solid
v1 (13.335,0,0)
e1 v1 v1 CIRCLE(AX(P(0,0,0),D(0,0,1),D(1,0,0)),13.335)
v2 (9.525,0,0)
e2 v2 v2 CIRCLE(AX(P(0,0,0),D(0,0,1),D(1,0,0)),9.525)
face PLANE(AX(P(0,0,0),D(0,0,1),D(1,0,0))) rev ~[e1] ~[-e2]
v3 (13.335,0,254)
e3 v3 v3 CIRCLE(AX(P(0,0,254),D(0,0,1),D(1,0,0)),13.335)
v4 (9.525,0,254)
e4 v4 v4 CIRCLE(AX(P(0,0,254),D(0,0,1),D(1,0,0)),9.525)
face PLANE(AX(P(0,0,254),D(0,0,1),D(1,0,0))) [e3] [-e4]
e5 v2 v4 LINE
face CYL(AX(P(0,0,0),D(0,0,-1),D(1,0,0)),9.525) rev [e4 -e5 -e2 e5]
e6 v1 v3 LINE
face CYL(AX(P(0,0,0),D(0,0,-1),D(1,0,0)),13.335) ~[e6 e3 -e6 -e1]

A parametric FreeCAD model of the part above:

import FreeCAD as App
import Part
import Sketcher

V = App.Vector
Q = App.Units.Quantity

doc = App.newDocument("Part")
params = doc.addObject("Spreadsheet::Sheet", "Params")
for row, (alias, value) in enumerate([
    ("sketch1_diameter", "0.75 in"),
    ("pad1_length", "10 in"),
    ("sketch2_diameter", "1.05 in"),
    ("pad2_length", "10 in"),
], start=1):
    params.set(f"A{row}", alias)
    params.set(f"B{row}", "=" + value)
    params.setAlias(f"B{row}", alias)

body = doc.addObject("PartDesign::Body", "Body")

# Sketch on XY plane
sketch1 = doc.addObject("Sketcher::SketchObject", "Sketch")
body.addObject(sketch1)
sketch1.AttachmentSupport = (doc.XY_Plane, [""])
sketch1.MapMode = "FlatFace"
sketch1.addGeometry(Part.Circle(V(0, 0, 0), V(0, 0, 1), 10), False)
sketch1.addConstraint(Sketcher.Constraint("Coincident", 0, 3, -1, 1))
sketch1.addConstraint(Sketcher.Constraint("Diameter", 0, Q("0.75 in")))
sketch1.setExpression("Constraints[1]", "Params.sketch1_diameter")
pad1 = doc.addObject("PartDesign::Pad", "Pad")
body.addObject(pad1)
pad1.Profile = sketch1
pad1.setExpression("Length", "Params.pad1_length")
body2 = doc.addObject("PartDesign::Body", "Body001")

# Sketch on XY plane
sketch2 = doc.addObject("Sketcher::SketchObject", "Sketch001")
body2.addObject(sketch2)
sketch2.AttachmentSupport = (doc.getObject("XY_Plane001"), [""])
sketch2.MapMode = "FlatFace"
sketch2.addGeometry(Part.Circle(V(0, 0, 0), V(0, 0, 1), 13), False)
sketch2.addConstraint(Sketcher.Constraint("Coincident", 0, 3, -1, 1))
sketch2.addConstraint(Sketcher.Constraint("Diameter", 0, Q("1.05 in")))
sketch2.setExpression("Constraints[1]", "Params.sketch2_diameter")
pad2 = doc.addObject("PartDesign::Pad", "Pad001")
body2.addObject(pad2)
pad2.Profile = sketch2
pad2.setExpression("Length", "Params.pad2_length")
doc.recompute()

boolean = doc.addObject("PartDesign::Boolean", "Boolean")
body2.addObject(boolean)
boolean.Type = "Cut"
boolean.addObjects([body])

doc.recompute()
